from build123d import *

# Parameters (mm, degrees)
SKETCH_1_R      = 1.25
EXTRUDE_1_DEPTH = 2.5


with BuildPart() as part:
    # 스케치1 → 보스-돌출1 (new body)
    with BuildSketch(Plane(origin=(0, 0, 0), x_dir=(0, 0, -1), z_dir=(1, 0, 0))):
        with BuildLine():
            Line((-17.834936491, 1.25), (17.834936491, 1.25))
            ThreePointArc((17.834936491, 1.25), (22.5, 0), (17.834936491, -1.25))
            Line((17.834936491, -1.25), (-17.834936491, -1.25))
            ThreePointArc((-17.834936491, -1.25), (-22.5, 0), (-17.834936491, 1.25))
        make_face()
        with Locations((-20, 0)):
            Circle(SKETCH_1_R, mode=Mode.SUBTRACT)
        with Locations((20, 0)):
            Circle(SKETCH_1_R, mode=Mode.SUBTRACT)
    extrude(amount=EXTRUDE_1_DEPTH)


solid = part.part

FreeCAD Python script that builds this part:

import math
import FreeCAD as App
import Part
import Sketcher
Q = App.Units.Quantity

doc = App.newDocument("Part")
body = doc.addObject("PartDesign::Body", "Body")

# Sketch on YZ plane
sketch1 = body.newObject("Sketcher::SketchObject", "Sketch")
sketch1.AttachmentSupport = (doc.getObject("YZ_Plane"), [""])
sketch1.MapMode = "FlatFace"
sketch1.addGeometry(Part.LineSegment(App.Vector(1.2, -17.8, 0), App.Vector(1.2, 17.8, 0)), False)
sketch1.addGeometry(Part.ArcOfCircle(Part.Circle(App.Vector(0, 20, 0), App.Vector(0, 0, 1), 2.5), math.radians(-60), math.radians(240)), False)
sketch1.addGeometry(Part.LineSegment(App.Vector(-1.2, 17.8, 0), App.Vector(-1.2, -17.8, 0)), False)
sketch1.addGeometry(Part.ArcOfCircle(Part.Circle(App.Vector(0, -20, 0), App.Vector(0, 0, 1), 2.5), math.radians(120), math.radians(420)), False)
sketch1.addGeometry(Part.Circle(App.Vector(0, -20, 0), App.Vector(0, 0, 1), 1.2), False)
sketch1.addGeometry(Part.Circle(App.Vector(0, 20, 0), App.Vector(0, 0, 1), 1.2), False)
sketch1.addConstraint(Sketcher.Constraint("Coincident", 0, 2, 1, 1))
sketch1.addConstraint(Sketcher.Constraint("Coincident", 1, 2, 2, 1))
sketch1.addConstraint(Sketcher.Constraint("Coincident", 2, 2, 3, 1))
sketch1.addConstraint(Sketcher.Constraint("Coincident", 3, 2, 0, 1))
sketch1.addConstraint(Sketcher.Constraint("Vertical", 0))
sketch1.addConstraint(Sketcher.Constraint("Vertical", 2))
sketch1.addConstraint(Sketcher.Constraint("Coincident", 4, 3, 3, 3))
sketch1.addConstraint(Sketcher.Constraint("Coincident", 5, 3, 1, 3))
sketch1.addConstraint(Sketcher.Constraint("Equal", 1, 3))
sketch1.addConstraint(Sketcher.Constraint("Equal", 4, 5))
sketch1.addConstraint(Sketcher.Constraint("Symmetric", 1, 3, 3, 3, -1, 1))
sketch1.addConstraint(Sketcher.Constraint("Symmetric", 0, 2, 1, 2, -2))
sketch1.addConstraint(Sketcher.Constraint("Diameter", 4, Q("2.5 mm")))
sketch1.addConstraint(Sketcher.Constraint("Radius", 1, Q("2.5 mm")))
sketch1.addConstraint(Sketcher.Constraint("DistanceY", -1, 1, 1, 3, Q("20 mm")))
sketch1.addConstraint(Sketcher.Constraint("DistanceX", 1, 2, 0, 2, Q("2.5 mm")))
pad1 = body.newObject("PartDesign::Pad", "Pad")
pad1.Profile = sketch1
pad1.Length = 2.5

doc.recompute()
